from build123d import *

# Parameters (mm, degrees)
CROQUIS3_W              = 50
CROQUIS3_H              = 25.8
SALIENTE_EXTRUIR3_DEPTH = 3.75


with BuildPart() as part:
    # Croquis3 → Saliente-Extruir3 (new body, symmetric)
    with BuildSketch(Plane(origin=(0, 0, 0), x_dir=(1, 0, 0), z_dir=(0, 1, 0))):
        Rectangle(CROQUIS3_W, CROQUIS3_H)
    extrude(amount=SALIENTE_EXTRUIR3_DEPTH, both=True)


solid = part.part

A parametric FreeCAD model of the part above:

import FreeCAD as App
import Part
import Sketcher
from FreeCAD import Vector
Q = App.Units.Quantity


def add_polygon(sketch, points):
    """Adds a closed chain of lines whose ends are joined by coincident constraints."""
    first, n = sketch.GeometryCount, len(points)
    for a, b in zip(points, points[1:] + points[:1]):
        sketch.addGeometry(Part.LineSegment(App.Vector(*a, 0), App.Vector(*b, 0)), False)
    for i in range(n):
        sketch.addConstraint(Sketcher.Constraint("Coincident", first + i, 2, first + (i + 1) % n, 1))

doc = App.newDocument("Part")
params = doc.addObject("Spreadsheet::Sheet", "Params")
for row, (alias, value) in enumerate([
    ("sketch1_width", "50 mm"),
    ("sketch1_height", "25.8 mm"),
    ("pad1_length", "7.5 mm"),
], start=1):
    params.set(f"A{row}", alias)
    params.set(f"B{row}", "=" + value)
    params.setAlias(f"B{row}", alias)

body = doc.addObject("PartDesign::Body", "Body")

# Sketch on XZ plane
sketch1 = body.newObject("Sketcher::SketchObject", "Sketch")
sketch1.AttachmentSupport = (doc.getObject("XZ_Plane"), [""])
sketch1.MapMode = "FlatFace"
add_polygon(sketch1, [(-25, -12.9), (-25, 12.9), (25, 12.9), (25, -12.9)])  # lines 0-3
sketch1.addConstraint([
    Sketcher.Constraint("Vertical", 0),
    Sketcher.Constraint("Horizontal", 1),
    Sketcher.Constraint("Vertical", 2),
    Sketcher.Constraint("Horizontal", 3),
    Sketcher.Constraint("Symmetric", 0, 2, 2, 2, -1, 1),
    Sketcher.Constraint("DistanceX", 1, 1, 1, 2, Q("50 mm")),
    Sketcher.Constraint("DistanceY", 0, 1, 0, 2, Q("25.8 mm")),
])
sketch1.setExpression("Constraints[9]", "Params.sketch1_width")
sketch1.setExpression("Constraints[10]", "Params.sketch1_height")
pad1 = body.newObject("PartDesign::Pad", "Pad")
pad1.Profile = sketch1
pad1.setExpression("Length", "Params.pad1_length")
pad1.Midplane = True

doc.recompute()
